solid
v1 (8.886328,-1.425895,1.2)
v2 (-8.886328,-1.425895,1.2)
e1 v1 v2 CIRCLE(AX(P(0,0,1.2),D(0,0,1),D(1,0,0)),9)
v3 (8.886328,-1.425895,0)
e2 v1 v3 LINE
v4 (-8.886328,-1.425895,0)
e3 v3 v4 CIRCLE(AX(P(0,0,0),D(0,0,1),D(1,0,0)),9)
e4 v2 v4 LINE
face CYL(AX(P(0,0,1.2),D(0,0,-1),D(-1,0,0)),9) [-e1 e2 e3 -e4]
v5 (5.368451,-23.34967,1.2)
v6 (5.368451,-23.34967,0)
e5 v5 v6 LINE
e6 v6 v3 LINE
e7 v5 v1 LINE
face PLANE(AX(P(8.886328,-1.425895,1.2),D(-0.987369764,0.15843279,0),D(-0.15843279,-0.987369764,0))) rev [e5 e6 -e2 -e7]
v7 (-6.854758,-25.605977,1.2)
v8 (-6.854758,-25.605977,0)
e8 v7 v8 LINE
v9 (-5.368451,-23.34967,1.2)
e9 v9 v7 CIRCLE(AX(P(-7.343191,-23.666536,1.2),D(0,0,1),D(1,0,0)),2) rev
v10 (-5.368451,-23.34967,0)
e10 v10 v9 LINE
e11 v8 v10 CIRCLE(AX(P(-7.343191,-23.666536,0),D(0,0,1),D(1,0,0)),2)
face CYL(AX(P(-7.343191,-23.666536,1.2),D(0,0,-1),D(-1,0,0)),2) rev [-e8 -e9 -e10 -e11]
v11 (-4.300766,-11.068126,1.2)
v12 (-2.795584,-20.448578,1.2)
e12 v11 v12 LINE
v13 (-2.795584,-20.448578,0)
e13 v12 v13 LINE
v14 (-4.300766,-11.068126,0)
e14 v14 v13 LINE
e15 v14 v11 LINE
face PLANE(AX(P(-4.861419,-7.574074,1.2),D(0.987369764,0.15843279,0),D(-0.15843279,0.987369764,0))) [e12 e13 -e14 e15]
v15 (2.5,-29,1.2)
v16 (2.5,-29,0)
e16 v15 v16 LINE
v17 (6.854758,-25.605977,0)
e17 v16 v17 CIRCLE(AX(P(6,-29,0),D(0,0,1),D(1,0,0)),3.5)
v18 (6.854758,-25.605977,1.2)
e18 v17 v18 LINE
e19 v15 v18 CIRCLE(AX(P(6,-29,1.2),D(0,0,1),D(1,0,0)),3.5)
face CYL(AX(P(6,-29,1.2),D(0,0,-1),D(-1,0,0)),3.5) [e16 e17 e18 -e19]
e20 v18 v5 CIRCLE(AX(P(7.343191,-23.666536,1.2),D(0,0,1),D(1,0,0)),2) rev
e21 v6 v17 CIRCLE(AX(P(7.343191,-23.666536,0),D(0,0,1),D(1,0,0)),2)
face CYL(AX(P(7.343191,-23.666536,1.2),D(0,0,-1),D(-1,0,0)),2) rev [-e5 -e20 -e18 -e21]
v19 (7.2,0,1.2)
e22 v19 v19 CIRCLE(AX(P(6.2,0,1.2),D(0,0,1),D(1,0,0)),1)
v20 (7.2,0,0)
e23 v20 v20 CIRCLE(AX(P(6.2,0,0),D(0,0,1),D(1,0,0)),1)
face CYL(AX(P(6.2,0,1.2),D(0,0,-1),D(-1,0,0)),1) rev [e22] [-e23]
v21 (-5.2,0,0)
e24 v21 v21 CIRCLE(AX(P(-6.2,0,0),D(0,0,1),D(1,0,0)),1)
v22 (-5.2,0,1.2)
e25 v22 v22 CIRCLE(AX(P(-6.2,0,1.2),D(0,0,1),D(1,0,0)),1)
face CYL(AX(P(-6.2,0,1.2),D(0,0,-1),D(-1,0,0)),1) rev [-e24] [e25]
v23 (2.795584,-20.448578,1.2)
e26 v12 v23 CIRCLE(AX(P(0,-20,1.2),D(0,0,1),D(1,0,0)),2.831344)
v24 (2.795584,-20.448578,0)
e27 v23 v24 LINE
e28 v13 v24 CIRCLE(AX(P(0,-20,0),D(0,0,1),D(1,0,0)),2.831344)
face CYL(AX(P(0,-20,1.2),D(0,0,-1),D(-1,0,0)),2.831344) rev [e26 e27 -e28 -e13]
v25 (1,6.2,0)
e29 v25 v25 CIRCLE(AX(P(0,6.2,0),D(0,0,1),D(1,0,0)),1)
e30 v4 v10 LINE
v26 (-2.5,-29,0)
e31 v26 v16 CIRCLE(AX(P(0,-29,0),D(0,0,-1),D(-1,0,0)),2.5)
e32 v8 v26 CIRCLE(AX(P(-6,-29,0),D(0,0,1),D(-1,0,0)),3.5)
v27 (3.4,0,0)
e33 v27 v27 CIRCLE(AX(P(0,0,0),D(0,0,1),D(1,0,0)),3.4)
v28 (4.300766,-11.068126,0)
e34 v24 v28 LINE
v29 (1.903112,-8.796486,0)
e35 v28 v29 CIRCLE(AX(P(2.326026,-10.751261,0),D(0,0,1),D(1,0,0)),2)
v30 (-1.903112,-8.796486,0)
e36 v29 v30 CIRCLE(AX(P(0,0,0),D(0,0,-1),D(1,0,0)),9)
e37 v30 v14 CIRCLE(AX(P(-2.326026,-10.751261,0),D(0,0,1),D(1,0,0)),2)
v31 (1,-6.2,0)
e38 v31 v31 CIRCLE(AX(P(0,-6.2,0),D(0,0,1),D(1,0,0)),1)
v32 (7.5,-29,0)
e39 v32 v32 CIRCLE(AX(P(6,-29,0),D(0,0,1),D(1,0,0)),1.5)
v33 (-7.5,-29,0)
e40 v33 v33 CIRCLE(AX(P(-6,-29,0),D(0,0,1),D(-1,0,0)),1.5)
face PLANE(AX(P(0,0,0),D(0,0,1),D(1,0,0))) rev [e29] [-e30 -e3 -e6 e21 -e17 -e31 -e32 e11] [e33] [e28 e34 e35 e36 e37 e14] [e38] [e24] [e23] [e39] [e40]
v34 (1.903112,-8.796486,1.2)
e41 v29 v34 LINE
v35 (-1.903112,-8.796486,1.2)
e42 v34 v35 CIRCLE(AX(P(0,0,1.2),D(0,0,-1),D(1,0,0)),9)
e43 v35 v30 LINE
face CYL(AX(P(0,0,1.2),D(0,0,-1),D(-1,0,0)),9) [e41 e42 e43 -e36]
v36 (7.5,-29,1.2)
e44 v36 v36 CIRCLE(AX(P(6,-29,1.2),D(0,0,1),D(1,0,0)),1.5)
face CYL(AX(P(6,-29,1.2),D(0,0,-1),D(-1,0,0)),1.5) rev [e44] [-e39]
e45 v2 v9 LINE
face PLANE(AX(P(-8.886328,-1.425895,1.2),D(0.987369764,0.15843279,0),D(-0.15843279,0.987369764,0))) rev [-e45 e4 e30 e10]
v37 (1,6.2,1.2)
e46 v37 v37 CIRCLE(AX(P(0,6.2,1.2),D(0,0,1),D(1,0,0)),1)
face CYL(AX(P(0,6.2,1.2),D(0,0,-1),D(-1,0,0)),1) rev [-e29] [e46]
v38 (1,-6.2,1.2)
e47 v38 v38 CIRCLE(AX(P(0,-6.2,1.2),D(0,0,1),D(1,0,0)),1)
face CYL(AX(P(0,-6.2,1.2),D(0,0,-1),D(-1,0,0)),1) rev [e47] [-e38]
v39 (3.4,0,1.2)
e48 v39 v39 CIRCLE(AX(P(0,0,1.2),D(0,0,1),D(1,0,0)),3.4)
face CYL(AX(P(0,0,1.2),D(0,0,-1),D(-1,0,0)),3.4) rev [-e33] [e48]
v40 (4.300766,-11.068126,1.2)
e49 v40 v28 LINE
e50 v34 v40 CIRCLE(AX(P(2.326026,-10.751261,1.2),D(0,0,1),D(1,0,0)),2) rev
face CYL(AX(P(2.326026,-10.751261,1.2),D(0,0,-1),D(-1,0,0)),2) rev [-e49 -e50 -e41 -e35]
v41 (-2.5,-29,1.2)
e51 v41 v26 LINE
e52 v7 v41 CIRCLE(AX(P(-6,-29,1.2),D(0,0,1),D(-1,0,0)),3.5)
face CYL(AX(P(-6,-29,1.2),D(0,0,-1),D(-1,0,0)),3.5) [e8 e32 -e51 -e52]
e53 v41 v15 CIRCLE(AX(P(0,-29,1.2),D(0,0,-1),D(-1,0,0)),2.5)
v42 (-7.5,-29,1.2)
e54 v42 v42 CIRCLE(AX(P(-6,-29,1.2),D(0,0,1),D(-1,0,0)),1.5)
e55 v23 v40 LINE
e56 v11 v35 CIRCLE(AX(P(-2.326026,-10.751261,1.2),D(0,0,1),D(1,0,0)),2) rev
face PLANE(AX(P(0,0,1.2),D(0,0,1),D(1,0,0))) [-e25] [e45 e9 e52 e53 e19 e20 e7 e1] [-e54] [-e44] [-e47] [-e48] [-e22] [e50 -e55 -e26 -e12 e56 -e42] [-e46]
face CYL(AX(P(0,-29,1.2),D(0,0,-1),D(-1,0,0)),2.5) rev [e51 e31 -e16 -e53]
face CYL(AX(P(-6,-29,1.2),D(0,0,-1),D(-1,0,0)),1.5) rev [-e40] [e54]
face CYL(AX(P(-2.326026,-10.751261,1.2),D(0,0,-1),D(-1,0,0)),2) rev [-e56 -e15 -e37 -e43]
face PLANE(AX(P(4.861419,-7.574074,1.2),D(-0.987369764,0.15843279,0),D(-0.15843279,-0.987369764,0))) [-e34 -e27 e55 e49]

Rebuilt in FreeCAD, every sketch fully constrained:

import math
import FreeCAD as App
import Part
import Sketcher
Q = App.Units.Quantity


def edges_at(feature, points):
    """Names of the edges that pass closest to the given points."""
    edges = feature.Shape.Edges
    near = lambda p: min(range(len(edges)), key=lambda i: edges[i].distToShape(Part.Vertex(*p))[0])
    return sorted({f"Edge{near(p) + 1}" for p in points})

doc = App.newDocument("Part")
params = doc.addObject("Spreadsheet::Sheet", "Params")
for row, (alias, value) in enumerate([
    ("sketch1_diameter", "3 mm"),
    ("sketch1_diameter2", "2 mm"),
    ("sketch1_radius", "9 mm"),
    ("sketch1_diameter3", "6.8 mm"),
    ("sketch1_radius2", "3.5 mm"),
    ("pad1_length", "1.2 mm"),
    ("fillet_radius", "2 mm"),
], start=1):
    params.set(f"A{row}", alias)
    params.set(f"B{row}", "=" + value)
    params.setAlias(f"B{row}", alias)

body = doc.addObject("PartDesign::Body", "Body")

# Sketch on XY plane
sketch1 = body.newObject("Sketcher::SketchObject", "Sketch")
sketch1.AttachmentSupport = (doc.getObject("XY_Plane"), [""])
sketch1.MapMode = "FlatFace"
sketch1.addGeometry([
    Part.LineSegment(App.Vector(5, -25.6, 0), App.Vector(8.9, -1.4, 0)),  # 0
    Part.ArcOfCircle(Part.Circle(App.Vector(0, 0, 0), App.Vector(0, 0, 1), 9), math.radians(-9), math.radians(189)),  # 1
    Part.LineSegment(App.Vector(-8.9, -1.4, 0), App.Vector(-5, -25.6, 0)),  # 2
    Part.ArcOfCircle(Part.Circle(App.Vector(-6, -29, 0), App.Vector(0, 0, 1), 3.5), math.radians(73), math.radians(360)),  # 3
    Part.ArcOfCircle(Part.Circle(App.Vector(0, -29, 0), App.Vector(0, 0, 1), 2.5), math.radians(0), math.radians(180)),  # 4
    Part.ArcOfCircle(Part.Circle(App.Vector(6, -29, 0), App.Vector(0, 0, 1), 3.5), math.radians(180), math.radians(467)),  # 5
    Part.Circle(App.Vector(6, -29, 0), App.Vector(0, 0, 1), 1.5),  # 6
    Part.Circle(App.Vector(-6, -29, 0), App.Vector(0, 0, 1), 1.5),  # 7
    Part.LineSegment(App.Vector(4.9, -7.6, 0), App.Vector(2.8, -20.4, 0)),  # 8
    Part.ArcOfCircle(Part.Circle(App.Vector(0, -20, 0), App.Vector(0, 0, 1), 2.8), math.radians(-171), math.radians(-9)),  # 9
    Part.LineSegment(App.Vector(-2.8, -20.4, 0), App.Vector(-4.9, -7.6, 0)),  # 10
    Part.ArcOfCircle(Part.Circle(App.Vector(0, 0, 0), App.Vector(0, 0, 1), 9), math.radians(-123), math.radians(-57)),  # 11
    Part.Circle(App.Vector(6.2, 0, 0), App.Vector(0, 0, 1), 1),  # 12
    Part.Circle(App.Vector(0, -6.2, 0), App.Vector(0, 0, 1), 1),  # 13
    Part.Circle(App.Vector(0, 0, 0), App.Vector(0, 0, 1), 3.4),  # 14
    Part.Circle(App.Vector(0, 6.2, 0), App.Vector(0, 0, 1), 1),  # 15
    Part.Circle(App.Vector(-6.2, 0, 0), App.Vector(0, 0, 1), 1),  # 16
], False)
sketch1.addConstraint([
    Sketcher.Constraint("Tangent", 0, 2, 1, 1),
    Sketcher.Constraint("Tangent", 1, 2, 2, 1),
    Sketcher.Constraint("Coincident", 2, 2, 3, 1),
    Sketcher.Constraint("Tangent", 3, 2, 4, 2),
    Sketcher.Constraint("Tangent", 4, 1, 5, 1),
    Sketcher.Constraint("Coincident", 5, 2, 0, 1),
    Sketcher.Constraint("Tangent", 8, 2, 9, 2),
    Sketcher.Constraint("Tangent", 9, 1, 10, 1),
    Sketcher.Constraint("Coincident", 10, 2, 11, 1),
    Sketcher.Constraint("Coincident", 11, 2, 8, 1),
    Sketcher.Constraint("Coincident", 1, 3, -1, 1),
    Sketcher.Constraint("Coincident", 11, 3, -1, 1),
    Sketcher.Constraint("Coincident", 14, 3, -1, 1),
    Sketcher.Constraint("Coincident", 6, 3, 5, 3),
    Sketcher.Constraint("Coincident", 7, 3, 3, 3),
    Sketcher.Constraint("Equal", 3, 5),
    Sketcher.Constraint("Equal", 6, 7),
    Sketcher.Constraint("Equal", 1, 11),
    Sketcher.Constraint("Equal", 12, 13),
    Sketcher.Constraint("Equal", 13, 15),
    Sketcher.Constraint("Equal", 15, 16),
    Sketcher.Constraint("Symmetric", 13, 3, 15, 3, -1, 1),
    Sketcher.Constraint("Symmetric", 12, 3, 16, 3, -1, 1),
    Sketcher.Constraint("Symmetric", 3, 3, 5, 3, -2),
    Sketcher.Constraint("Symmetric", 8, 2, 9, 1, -2),
    Sketcher.Constraint("PointOnObject", 12, 3, -1),
    Sketcher.Constraint("PointOnObject", 13, 3, -2),
    Sketcher.Constraint("Parallel", 0, 8),
    Sketcher.Constraint("Parallel", 2, 10),
    Sketcher.Constraint("Horizontal", 3, 3, 4, 3),
    Sketcher.Constraint("Diameter", 6, Q("3 mm")),
    Sketcher.Constraint("Diameter", 12, Q("2 mm")),
    Sketcher.Constraint("Radius", 1, Q("9 mm")),
    Sketcher.Constraint("Diameter", 14, Q("6.8 mm")),
    Sketcher.Constraint("Radius", 3, Q("3.5 mm")),
    Sketcher.Constraint("Radius", 4, Q("2.5 mm")),
    Sketcher.Constraint("DistanceY", 3, 3, -1, 1, Q("29 mm")),
    Sketcher.Constraint("DistanceY", 9, 3, -1, 1, Q("20 mm")),
    Sketcher.Constraint("DistanceX", 2, 2, -1, 1, Q("5 mm")),
    Sketcher.Constraint("DistanceX", -1, 1, 12, 3, Q("6.2 mm")),
    Sketcher.Constraint("DistanceY", 13, 3, -1, 1, Q("6.2 mm")),
    Sketcher.Constraint("Radius", 9, Q("2.831344 mm")),
])
sketch1.setExpression("Constraints[30]", "Params.sketch1_diameter")
sketch1.setExpression("Constraints[31]", "Params.sketch1_diameter2")
sketch1.setExpression("Constraints[32]", "Params.sketch1_radius")
sketch1.setExpression("Constraints[33]", "Params.sketch1_diameter3")
sketch1.setExpression("Constraints[34]", "Params.sketch1_radius2")
pad1 = body.newObject("PartDesign::Pad", "Pad")
pad1.Profile = sketch1
pad1.setExpression("Length", "Params.pad1_length")
doc.recompute()

fillet = body.newObject("PartDesign::Fillet", "Fillet")
fillet.Base = (pad1, edges_at(pad1, [
    (5, -25.646, 0.6),
    (-5, -25.646, 0.6),
    (4.861, -7.574, 0.6),
    (-4.861, -7.574, 0.6),
]))
fillet.setExpression("Radius", "Params.fillet_radius")

doc.recompute()
